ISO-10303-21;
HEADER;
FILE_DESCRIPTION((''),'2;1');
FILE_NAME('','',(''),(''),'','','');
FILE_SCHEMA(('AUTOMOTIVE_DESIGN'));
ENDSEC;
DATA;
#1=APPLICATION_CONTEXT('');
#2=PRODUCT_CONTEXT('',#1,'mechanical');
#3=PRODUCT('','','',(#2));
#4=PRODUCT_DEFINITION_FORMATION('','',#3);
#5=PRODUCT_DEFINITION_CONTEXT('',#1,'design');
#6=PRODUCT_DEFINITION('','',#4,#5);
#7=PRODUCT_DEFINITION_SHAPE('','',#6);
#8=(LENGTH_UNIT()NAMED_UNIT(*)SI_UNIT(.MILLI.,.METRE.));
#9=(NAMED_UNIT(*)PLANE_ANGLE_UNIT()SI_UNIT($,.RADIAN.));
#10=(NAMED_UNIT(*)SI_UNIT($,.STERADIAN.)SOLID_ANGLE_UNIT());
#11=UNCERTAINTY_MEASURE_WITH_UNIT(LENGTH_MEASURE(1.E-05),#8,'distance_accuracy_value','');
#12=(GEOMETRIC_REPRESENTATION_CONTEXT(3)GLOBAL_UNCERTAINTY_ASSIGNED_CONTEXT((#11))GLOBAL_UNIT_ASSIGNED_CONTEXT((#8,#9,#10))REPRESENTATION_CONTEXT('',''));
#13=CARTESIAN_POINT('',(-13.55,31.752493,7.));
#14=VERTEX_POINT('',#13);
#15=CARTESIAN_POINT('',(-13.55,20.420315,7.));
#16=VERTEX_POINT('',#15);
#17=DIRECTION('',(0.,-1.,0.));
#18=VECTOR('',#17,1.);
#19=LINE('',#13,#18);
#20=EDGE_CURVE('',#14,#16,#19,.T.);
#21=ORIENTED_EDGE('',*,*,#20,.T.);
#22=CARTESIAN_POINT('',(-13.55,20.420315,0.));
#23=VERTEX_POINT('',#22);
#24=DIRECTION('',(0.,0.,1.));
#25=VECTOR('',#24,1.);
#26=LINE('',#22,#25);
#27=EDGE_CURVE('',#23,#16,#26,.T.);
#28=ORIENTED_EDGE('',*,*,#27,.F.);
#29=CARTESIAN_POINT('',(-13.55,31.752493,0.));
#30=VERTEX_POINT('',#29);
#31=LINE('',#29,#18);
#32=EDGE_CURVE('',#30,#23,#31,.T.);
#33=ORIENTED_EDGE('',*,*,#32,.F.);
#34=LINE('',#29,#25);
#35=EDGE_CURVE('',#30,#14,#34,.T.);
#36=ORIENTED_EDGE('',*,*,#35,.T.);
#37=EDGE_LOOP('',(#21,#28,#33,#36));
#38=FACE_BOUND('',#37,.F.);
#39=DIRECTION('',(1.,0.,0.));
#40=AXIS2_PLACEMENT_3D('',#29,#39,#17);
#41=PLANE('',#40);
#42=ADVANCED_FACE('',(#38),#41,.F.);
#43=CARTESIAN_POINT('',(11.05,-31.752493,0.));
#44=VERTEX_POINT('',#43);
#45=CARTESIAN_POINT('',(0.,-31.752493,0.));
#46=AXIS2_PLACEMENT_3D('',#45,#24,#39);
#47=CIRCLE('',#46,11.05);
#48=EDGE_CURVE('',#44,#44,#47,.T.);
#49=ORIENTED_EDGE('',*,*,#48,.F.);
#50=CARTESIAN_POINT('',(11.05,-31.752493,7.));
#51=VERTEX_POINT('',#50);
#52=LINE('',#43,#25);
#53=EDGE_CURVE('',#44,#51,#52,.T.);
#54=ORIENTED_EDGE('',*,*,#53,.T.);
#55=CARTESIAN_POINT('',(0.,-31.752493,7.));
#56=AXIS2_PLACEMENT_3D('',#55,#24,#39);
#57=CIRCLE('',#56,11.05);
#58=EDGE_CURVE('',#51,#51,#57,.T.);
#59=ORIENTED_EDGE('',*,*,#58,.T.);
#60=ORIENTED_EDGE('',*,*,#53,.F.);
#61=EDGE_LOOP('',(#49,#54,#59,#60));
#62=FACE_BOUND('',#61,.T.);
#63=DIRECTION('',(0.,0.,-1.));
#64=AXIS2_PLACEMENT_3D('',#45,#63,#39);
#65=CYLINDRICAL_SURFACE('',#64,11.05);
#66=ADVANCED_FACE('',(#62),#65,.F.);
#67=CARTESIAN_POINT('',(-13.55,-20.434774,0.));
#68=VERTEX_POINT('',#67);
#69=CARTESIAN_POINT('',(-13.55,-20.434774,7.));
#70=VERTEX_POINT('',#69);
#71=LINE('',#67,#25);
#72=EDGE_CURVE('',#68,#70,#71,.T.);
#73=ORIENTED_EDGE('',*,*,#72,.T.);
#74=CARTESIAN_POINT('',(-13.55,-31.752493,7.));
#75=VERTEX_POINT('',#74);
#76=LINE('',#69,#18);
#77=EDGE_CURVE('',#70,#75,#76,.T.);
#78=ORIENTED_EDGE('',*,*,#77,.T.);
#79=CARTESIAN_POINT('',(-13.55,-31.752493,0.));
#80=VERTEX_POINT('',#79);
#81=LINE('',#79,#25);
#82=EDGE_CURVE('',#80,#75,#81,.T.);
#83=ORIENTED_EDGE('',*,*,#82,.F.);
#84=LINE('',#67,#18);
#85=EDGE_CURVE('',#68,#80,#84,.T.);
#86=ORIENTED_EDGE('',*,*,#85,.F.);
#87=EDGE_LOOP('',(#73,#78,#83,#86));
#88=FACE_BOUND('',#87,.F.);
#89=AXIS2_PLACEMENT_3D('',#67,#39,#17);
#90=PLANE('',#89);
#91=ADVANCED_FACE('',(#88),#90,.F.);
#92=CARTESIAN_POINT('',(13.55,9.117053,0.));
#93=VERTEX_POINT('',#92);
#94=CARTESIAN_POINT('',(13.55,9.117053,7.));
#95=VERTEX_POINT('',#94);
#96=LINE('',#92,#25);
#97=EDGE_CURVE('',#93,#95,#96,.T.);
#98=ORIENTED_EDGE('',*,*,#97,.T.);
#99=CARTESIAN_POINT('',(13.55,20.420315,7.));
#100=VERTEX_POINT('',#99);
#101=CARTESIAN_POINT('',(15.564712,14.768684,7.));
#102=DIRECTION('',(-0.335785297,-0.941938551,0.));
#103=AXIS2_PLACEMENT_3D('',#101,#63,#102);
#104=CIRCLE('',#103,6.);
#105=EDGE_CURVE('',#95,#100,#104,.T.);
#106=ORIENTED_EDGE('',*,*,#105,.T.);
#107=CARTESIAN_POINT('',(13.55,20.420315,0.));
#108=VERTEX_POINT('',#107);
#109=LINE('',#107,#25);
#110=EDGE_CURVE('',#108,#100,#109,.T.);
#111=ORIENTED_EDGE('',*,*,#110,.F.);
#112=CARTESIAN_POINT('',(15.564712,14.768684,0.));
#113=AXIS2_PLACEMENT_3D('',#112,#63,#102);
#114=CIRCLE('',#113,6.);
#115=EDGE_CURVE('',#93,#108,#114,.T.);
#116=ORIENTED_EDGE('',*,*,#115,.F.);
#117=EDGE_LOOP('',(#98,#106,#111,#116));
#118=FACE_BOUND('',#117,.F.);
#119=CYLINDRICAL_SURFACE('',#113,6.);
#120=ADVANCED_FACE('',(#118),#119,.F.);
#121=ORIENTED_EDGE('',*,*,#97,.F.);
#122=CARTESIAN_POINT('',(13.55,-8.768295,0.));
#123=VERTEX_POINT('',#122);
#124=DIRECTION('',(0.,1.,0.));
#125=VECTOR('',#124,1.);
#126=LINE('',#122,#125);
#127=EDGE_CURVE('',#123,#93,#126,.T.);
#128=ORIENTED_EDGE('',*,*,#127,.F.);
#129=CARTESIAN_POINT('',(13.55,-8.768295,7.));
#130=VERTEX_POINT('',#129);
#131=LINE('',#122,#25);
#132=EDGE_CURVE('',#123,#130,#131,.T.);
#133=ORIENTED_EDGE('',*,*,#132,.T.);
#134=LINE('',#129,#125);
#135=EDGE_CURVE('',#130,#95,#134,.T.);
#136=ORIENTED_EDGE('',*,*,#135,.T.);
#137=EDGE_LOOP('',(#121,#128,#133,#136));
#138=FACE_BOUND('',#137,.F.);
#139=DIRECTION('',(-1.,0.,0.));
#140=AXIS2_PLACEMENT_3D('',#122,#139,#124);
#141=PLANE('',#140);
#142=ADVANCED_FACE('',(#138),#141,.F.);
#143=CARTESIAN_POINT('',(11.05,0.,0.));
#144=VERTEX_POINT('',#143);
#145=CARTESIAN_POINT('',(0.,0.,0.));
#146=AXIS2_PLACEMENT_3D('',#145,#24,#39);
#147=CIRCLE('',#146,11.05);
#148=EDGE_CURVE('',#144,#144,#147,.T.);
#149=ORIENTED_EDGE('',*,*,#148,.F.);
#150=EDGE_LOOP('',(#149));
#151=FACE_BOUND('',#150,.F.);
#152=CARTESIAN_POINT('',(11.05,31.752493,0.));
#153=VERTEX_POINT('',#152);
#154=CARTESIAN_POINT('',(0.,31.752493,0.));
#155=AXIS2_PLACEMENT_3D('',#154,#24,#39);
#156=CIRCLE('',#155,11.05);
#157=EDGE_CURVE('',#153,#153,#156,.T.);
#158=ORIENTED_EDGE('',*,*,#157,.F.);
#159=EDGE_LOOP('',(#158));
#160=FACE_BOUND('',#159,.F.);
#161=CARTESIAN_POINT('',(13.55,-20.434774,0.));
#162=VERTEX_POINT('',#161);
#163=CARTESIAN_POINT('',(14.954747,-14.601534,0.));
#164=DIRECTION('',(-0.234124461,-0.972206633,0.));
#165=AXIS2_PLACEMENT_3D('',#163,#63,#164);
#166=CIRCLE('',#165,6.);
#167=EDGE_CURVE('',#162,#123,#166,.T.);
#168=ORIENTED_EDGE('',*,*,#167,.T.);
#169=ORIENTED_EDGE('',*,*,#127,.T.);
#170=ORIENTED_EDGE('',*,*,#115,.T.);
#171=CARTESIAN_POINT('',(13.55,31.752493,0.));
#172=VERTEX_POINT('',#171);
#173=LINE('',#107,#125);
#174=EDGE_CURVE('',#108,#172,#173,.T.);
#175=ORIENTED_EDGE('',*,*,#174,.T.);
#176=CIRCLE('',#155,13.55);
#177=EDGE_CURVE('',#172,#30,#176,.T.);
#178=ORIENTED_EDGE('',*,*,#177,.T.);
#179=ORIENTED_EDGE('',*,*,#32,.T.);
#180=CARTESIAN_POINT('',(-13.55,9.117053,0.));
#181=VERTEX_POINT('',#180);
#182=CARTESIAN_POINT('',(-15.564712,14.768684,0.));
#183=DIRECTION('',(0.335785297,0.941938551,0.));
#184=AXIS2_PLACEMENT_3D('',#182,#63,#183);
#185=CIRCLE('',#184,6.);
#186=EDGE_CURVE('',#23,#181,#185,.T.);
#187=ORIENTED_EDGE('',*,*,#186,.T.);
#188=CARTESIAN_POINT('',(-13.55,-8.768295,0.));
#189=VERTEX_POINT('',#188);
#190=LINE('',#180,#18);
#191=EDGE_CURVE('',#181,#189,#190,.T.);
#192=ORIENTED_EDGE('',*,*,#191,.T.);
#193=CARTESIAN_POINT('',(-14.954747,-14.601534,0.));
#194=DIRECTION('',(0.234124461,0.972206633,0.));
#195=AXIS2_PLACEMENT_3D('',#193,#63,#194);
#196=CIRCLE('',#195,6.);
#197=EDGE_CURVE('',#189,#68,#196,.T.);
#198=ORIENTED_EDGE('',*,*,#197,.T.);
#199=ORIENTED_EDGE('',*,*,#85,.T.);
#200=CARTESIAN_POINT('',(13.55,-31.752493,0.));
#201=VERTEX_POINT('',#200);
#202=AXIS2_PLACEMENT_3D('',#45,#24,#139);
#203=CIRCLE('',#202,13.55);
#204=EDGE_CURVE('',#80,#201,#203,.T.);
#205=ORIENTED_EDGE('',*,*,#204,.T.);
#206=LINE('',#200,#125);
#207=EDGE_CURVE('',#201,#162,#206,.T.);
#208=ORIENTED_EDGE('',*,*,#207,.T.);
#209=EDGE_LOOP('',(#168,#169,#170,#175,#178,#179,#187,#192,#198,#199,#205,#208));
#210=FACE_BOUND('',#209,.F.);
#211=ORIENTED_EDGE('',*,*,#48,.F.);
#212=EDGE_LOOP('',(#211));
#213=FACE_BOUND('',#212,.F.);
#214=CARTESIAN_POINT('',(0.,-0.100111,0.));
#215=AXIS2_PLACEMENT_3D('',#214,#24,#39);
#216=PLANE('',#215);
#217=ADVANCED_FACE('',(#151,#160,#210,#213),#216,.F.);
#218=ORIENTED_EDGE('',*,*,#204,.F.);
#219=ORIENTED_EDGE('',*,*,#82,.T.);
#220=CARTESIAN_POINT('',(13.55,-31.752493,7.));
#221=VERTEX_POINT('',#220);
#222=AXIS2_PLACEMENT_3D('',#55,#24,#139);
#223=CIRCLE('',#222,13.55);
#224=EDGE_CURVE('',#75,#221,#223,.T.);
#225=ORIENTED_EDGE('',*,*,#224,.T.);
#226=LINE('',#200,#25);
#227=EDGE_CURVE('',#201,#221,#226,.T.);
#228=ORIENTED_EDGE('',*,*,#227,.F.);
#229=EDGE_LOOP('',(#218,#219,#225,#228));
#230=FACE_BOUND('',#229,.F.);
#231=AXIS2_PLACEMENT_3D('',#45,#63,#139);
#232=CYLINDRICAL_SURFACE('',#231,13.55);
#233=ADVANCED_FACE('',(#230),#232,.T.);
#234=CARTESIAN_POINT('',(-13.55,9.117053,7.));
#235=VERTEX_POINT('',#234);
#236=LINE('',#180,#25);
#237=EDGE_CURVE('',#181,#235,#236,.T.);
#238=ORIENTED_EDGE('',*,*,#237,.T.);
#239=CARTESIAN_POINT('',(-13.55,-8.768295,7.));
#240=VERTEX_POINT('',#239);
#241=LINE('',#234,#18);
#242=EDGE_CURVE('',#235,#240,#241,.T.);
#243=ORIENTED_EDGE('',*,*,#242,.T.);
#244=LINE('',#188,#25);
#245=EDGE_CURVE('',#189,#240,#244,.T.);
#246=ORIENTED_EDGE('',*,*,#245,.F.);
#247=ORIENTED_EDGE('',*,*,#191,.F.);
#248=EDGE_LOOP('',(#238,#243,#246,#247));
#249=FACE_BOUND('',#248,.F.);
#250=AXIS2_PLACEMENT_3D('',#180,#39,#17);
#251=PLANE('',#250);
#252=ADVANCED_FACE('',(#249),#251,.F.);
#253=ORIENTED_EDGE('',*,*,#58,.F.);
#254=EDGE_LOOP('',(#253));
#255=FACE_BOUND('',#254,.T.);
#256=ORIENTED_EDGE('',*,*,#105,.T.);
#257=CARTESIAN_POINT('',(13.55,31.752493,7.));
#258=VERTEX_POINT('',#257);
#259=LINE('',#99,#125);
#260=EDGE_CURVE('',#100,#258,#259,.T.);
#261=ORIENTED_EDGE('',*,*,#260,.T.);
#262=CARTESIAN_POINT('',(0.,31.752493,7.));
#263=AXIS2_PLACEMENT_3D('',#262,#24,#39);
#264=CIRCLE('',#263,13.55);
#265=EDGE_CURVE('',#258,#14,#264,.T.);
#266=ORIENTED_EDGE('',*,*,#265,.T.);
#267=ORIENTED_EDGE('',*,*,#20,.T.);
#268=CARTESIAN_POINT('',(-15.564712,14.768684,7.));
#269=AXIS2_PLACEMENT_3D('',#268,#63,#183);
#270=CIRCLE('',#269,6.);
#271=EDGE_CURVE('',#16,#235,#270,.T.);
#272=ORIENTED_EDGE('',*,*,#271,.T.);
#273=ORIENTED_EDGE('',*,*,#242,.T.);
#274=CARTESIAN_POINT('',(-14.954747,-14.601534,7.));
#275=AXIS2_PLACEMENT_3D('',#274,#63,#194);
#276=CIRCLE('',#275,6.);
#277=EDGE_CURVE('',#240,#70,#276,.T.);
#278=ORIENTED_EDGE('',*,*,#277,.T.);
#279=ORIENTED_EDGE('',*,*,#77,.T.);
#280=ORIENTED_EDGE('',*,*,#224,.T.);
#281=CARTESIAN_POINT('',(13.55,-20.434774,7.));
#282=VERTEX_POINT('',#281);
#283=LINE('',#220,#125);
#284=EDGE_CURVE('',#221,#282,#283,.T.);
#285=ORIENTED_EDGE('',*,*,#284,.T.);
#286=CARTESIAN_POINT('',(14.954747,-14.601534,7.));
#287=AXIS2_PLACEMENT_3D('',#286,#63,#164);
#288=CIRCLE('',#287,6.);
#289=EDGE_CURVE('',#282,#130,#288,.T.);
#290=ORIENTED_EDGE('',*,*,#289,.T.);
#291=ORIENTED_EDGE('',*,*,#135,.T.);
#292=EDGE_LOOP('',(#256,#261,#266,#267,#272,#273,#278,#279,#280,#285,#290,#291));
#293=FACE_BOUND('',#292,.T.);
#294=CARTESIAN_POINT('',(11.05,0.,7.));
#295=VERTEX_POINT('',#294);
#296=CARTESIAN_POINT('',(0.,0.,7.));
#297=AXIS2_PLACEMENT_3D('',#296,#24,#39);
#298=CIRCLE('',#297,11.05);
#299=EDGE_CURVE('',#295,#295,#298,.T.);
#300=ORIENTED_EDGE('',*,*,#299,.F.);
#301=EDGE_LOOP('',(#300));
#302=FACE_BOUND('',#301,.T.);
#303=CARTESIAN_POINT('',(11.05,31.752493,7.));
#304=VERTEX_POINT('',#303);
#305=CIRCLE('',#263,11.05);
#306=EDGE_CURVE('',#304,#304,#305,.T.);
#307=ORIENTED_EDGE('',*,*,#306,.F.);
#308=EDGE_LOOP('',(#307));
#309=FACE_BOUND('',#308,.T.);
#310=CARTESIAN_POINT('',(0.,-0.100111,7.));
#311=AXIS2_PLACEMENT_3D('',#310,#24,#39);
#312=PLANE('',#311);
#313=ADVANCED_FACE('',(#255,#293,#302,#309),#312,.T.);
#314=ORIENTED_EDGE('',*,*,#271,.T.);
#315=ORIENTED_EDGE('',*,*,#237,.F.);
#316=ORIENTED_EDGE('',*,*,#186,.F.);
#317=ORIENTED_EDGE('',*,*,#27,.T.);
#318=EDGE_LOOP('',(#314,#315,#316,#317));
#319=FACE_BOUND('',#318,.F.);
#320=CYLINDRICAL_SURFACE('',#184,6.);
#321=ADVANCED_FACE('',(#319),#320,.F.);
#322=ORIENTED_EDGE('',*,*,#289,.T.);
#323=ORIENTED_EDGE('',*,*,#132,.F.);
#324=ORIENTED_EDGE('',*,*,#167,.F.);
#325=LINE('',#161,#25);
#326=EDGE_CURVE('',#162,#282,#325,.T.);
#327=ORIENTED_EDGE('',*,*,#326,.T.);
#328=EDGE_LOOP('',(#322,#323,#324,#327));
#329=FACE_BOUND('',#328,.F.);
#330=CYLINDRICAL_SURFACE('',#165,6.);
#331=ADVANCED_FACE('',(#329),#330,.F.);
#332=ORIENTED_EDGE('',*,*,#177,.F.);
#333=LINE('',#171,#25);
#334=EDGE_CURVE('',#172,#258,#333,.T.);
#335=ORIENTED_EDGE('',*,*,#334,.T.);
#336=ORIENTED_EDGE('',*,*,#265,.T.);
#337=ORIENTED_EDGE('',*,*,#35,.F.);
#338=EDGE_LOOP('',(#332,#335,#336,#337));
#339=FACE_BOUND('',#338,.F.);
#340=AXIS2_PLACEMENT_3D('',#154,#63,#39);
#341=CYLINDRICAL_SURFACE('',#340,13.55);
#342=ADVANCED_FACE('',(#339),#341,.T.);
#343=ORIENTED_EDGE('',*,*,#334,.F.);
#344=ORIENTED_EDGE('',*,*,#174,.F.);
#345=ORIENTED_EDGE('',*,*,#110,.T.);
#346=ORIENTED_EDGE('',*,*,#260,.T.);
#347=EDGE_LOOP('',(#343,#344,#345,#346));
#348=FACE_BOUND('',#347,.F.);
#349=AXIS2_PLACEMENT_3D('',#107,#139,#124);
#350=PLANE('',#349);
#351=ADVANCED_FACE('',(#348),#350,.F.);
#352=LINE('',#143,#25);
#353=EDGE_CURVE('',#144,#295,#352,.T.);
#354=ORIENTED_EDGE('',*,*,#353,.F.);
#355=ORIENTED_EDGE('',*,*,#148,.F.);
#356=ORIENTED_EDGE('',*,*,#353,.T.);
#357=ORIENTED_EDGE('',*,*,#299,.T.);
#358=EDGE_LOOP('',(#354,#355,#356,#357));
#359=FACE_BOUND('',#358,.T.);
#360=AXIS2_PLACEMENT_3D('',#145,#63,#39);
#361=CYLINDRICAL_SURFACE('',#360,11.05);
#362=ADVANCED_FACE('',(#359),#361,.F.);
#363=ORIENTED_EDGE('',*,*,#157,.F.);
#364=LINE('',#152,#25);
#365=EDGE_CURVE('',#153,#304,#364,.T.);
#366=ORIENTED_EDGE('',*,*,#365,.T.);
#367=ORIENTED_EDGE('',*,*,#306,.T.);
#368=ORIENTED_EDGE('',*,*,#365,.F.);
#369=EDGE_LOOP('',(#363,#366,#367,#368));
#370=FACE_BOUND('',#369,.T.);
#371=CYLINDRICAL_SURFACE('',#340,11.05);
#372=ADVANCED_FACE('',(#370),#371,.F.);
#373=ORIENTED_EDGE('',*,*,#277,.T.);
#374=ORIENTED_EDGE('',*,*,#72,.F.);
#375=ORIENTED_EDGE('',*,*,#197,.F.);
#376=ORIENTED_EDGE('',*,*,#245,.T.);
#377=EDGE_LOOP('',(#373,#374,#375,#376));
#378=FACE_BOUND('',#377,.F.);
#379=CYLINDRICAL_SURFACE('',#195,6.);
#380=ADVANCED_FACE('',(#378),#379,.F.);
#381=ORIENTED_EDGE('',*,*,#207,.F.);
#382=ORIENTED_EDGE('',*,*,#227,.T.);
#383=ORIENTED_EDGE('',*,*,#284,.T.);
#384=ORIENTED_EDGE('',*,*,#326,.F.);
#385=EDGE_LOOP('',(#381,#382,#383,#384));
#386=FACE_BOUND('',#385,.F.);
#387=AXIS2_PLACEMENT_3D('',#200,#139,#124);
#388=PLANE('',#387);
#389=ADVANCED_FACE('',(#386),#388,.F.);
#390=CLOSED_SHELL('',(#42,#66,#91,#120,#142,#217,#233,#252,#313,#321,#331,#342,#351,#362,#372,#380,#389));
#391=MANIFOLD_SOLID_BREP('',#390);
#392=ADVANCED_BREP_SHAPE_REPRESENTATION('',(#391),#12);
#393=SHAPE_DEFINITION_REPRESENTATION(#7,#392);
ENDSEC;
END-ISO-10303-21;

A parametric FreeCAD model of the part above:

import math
import FreeCAD as App
import Part
import Sketcher
from FreeCAD import Vector
Q = App.Units.Quantity

doc = App.newDocument("Part")
body = doc.addObject("PartDesign::Body", "Body")

# Sketch on XY plane
sketch1 = body.newObject("Sketcher::SketchObject", "Sketch")
sketch1.AttachmentSupport = (doc.getObject("XY_Plane"), [""])
sketch1.MapMode = "FlatFace"
sketch1.addGeometry([
    Part.LineSegment(Vector(14, 20, 0), Vector(14, 32, 0)),  # 0
    Part.ArcOfCircle(Part.Circle(Vector(0, 32, 0), Vector(0, 0, 1), 14), math.radians(0), math.radians(180)),  # 1
    Part.LineSegment(Vector(-14, 32, 0), Vector(-14, 20, 0)),  # 2
    Part.ArcOfCircle(Part.Circle(Vector(-16, 15, 0), Vector(0, 0, 1), 6), math.radians(-70), math.radians(70)),  # 3
    Part.LineSegment(Vector(-14, 9, 0), Vector(-14, -9, 0)),  # 4
    Part.ArcOfCircle(Part.Circle(Vector(-15, -15, 0), Vector(0, 0, 1), 6), math.radians(-76), math.radians(76)),  # 5
    Part.LineSegment(Vector(-14, -20, 0), Vector(-14, -32, 0)),  # 6
    Part.ArcOfCircle(Part.Circle(Vector(0, -32, 0), Vector(0, 0, 1), 14), math.radians(180), math.radians(360)),  # 7
    Part.LineSegment(Vector(14, -32, 0), Vector(14, -20, 0)),  # 8
    Part.ArcOfCircle(Part.Circle(Vector(15, -15, 0), Vector(0, 0, 1), 6), math.radians(104), math.radians(256)),  # 9
    Part.LineSegment(Vector(14, -9, 0), Vector(14, 9, 0)),  # 10
    Part.ArcOfCircle(Part.Circle(Vector(16, 15, 0), Vector(0, 0, 1), 6), math.radians(110), math.radians(250)),  # 11
    Part.Circle(Vector(0, -32, 0), Vector(0, 0, 1), 11),  # 12
    Part.Circle(Vector(0, 0, 0), Vector(0, 0, 1), 11),  # 13
    Part.Circle(Vector(0, 32, 0), Vector(0, 0, 1), 11),  # 14
], False)
sketch1.addConstraint([
    Sketcher.Constraint("Tangent", 0, 2, 1, 1),
    Sketcher.Constraint("Tangent", 1, 2, 2, 1),
    Sketcher.Constraint("Coincident", 2, 2, 3, 2),
    Sketcher.Constraint("Coincident", 3, 1, 4, 1),
    Sketcher.Constraint("Coincident", 4, 2, 5, 2),
    Sketcher.Constraint("Coincident", 5, 1, 6, 1),
    Sketcher.Constraint("Tangent", 6, 2, 7, 1),
    Sketcher.Constraint("Tangent", 7, 2, 8, 1),
    Sketcher.Constraint("Coincident", 8, 2, 9, 2),
    Sketcher.Constraint("Coincident", 9, 1, 10, 1),
    Sketcher.Constraint("Coincident", 10, 2, 11, 2),
    Sketcher.Constraint("Coincident", 11, 1, 0, 1),
    Sketcher.Constraint("Vertical", 0),
    Sketcher.Constraint("Vertical", 2),
    Sketcher.Constraint("Vertical", 4),
    Sketcher.Constraint("Vertical", 6),
    Sketcher.Constraint("Vertical", 8),
    Sketcher.Constraint("Vertical", 10),
    Sketcher.Constraint("Coincident", 13, 3, -1, 1),
    Sketcher.Constraint("Coincident", 12, 3, 7, 3),
    Sketcher.Constraint("Coincident", 14, 3, 1, 3),
    Sketcher.Constraint("Equal", 3, 5),
    Sketcher.Constraint("Equal", 1, 7),
    Sketcher.Constraint("Equal", 5, 9),
    Sketcher.Constraint("Equal", 9, 11),
    Sketcher.Constraint("Equal", 12, 13),
    Sketcher.Constraint("Equal", 13, 14),
    Sketcher.Constraint("Symmetric", 1, 3, 7, 3, -1, 1),
    Sketcher.Constraint("Symmetric", 5, 3, 9, 3, -2),
    Sketcher.Constraint("Symmetric", 3, 3, 11, 3, -2),
    Sketcher.Constraint("PointOnObject", 1, 3, -2),
    Sketcher.Constraint("Horizontal", 4, 2, 9, 1),
    Sketcher.Constraint("Vertical", 2, 2, 3, 1),
    Sketcher.Constraint("Radius", 3, Q("6 mm")),
    Sketcher.Constraint("Diameter", 12, Q("22.1 mm")),
    Sketcher.Constraint("Radius", 1, Q("13.55 mm")),
    Sketcher.Constraint("DistanceY", 0, 1, 0, 2, Q("11.332178 mm")),
    Sketcher.Constraint("DistanceY", 4, 2, 4, 1, Q("17.885348 mm")),
    Sketcher.Constraint("DistanceY", 6, 2, 6, 1, Q("11.317719 mm")),
    Sketcher.Constraint("DistanceX", 3, 3, -1, 1, Q("15.564712 mm")),
    Sketcher.Constraint("DistanceY", 5, 3, 3, 3, Q("29.370219 mm")),
])
pad1 = body.newObject("PartDesign::Pad", "Pad")
pad1.Profile = sketch1
pad1.Length = 7

doc.recompute()
